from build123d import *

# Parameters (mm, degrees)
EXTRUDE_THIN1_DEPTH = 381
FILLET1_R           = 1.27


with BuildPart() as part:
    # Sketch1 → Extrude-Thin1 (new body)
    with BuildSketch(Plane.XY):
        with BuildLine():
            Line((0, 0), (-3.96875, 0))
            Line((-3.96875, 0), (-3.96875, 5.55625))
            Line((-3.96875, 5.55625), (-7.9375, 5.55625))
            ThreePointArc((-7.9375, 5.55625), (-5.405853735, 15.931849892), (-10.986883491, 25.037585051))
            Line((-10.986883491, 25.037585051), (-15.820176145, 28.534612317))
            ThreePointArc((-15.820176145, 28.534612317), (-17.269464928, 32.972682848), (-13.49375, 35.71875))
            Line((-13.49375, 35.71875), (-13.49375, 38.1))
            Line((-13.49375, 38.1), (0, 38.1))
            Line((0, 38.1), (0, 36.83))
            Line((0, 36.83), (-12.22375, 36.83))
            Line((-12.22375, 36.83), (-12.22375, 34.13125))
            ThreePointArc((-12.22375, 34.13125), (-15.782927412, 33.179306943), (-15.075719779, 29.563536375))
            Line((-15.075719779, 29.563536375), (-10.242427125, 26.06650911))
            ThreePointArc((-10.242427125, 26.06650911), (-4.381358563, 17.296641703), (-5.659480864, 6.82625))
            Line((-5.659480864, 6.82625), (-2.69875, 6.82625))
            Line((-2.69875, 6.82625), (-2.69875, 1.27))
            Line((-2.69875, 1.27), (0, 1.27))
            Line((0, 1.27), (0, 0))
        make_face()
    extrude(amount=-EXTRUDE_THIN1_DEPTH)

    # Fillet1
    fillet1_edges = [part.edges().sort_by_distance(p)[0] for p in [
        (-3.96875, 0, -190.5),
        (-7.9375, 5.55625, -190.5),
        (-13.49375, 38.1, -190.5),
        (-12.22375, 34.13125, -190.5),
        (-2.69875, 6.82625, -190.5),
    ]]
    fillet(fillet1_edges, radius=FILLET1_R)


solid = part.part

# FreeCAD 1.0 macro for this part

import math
import FreeCAD as App
import Part
import Sketcher
from FreeCAD import Vector
Q = App.Units.Quantity


def edges_at(feature, points):
    """Names of the edges that pass closest to the given points."""
    edges = feature.Shape.Edges
    near = lambda p: min(range(len(edges)), key=lambda i: edges[i].distToShape(Part.Vertex(*p))[0])
    return sorted({f"Edge{near(p) + 1}" for p in points})

doc = App.newDocument("Part")
body = doc.addObject("PartDesign::Body", "Body")

# Sketch on XY plane
sketch1 = doc.addObject("Sketcher::SketchObject", "Sketch")
body.addObject(sketch1)
sketch1.AttachmentSupport = (doc.XY_Plane, [""])
sketch1.MapMode = "FlatFace"
sketch1.addGeometry([
    Part.LineSegment(Vector(-3.96875, 0, 0), Vector(0, 0, 0)),  # 0
    Part.LineSegment(Vector(0, 0, 0), Vector(0, 1.27, 0)),  # 1
    Part.LineSegment(Vector(0, 1.27, 0), Vector(-2.69875, 1.27, 0)),  # 2
    Part.LineSegment(Vector(-2.69875, 1.27, 0), Vector(-2.69875, 6.82625, 0)),  # 3
    Part.LineSegment(Vector(-2.69875, 6.82625, 0), Vector(-5.659481, 6.82625, 0)),  # 4
    Part.ArcOfCircle(Part.Circle(Vector(-19.129375, 13.783728, 0), Vector(0, 0, 1), 15.160625), math.radians(-27.317286), math.radians(54.113172)),  # 5
    Part.LineSegment(Vector(-10.242427, 26.066509, 0), Vector(-15.07572, 29.563536, 0)),  # 6
    Part.ArcOfCircle(Part.Circle(Vector(-13.49375, 31.75, 0), Vector(0, 0, 1), 2.69875), math.radians(61.927513), math.radians(234.113172)),  # 7
    Part.LineSegment(Vector(-12.22375, 34.13125, 0), Vector(-12.22375, 36.83, 0)),  # 8
    Part.LineSegment(Vector(-12.22375, 36.83, 0), Vector(0, 36.83, 0)),  # 9
    Part.LineSegment(Vector(0, 36.83, 0), Vector(0, 38.1, 0)),  # 10
    Part.LineSegment(Vector(0, 38.1, 0), Vector(-13.49375, 38.1, 0)),  # 11
    Part.LineSegment(Vector(-13.49375, 38.1, 0), Vector(-13.49375, 35.71875, 0)),  # 12
    Part.ArcOfCircle(Part.Circle(Vector(-13.49375, 31.75, 0), Vector(0, 0, 1), 3.96875), math.radians(90), math.radians(234.113172)),  # 13
    Part.LineSegment(Vector(-15.820176, 28.534612, 0), Vector(-10.986883, 25.037585, 0)),  # 14
    Part.ArcOfCircle(Part.Circle(Vector(-19.129375, 13.783728, 0), Vector(0, 0, 1), 13.890625), math.radians(-36.320706), math.radians(54.113172)),  # 15
    Part.LineSegment(Vector(-7.9375, 5.55625, 0), Vector(-3.96875, 5.55625, 0)),  # 16
    Part.LineSegment(Vector(-3.96875, 5.55625, 0), Vector(-3.96875, 0, 0)),  # 17
], False)
sketch1.addConstraint([
    Sketcher.Constraint("Coincident", 0, 2, 1, 1),
    Sketcher.Constraint("Coincident", 1, 2, 2, 1),
    Sketcher.Constraint("Coincident", 2, 2, 3, 1),
    Sketcher.Constraint("Coincident", 3, 2, 4, 1),
    Sketcher.Constraint("Coincident", 4, 2, 5, 1),
    Sketcher.Constraint("Tangent", 5, 2, 6, 1),
    Sketcher.Constraint("Tangent", 6, 2, 7, 2),
    Sketcher.Constraint("Coincident", 7, 1, 8, 1),
    Sketcher.Constraint("Coincident", 8, 2, 9, 1),
    Sketcher.Constraint("Coincident", 9, 2, 10, 1),
    Sketcher.Constraint("Coincident", 10, 2, 11, 1),
    Sketcher.Constraint("Coincident", 11, 2, 12, 1),
    Sketcher.Constraint("Coincident", 12, 2, 13, 1),
    Sketcher.Constraint("Tangent", 13, 2, 14, 1),
    Sketcher.Constraint("Tangent", 14, 2, 15, 2),
    Sketcher.Constraint("Coincident", 15, 1, 16, 1),
    Sketcher.Constraint("Coincident", 16, 2, 17, 1),
    Sketcher.Constraint("Coincident", 17, 2, 0, 1),
    Sketcher.Constraint("Horizontal", 0),
    Sketcher.Constraint("Vertical", 1),
    Sketcher.Constraint("Horizontal", 2),
    Sketcher.Constraint("Vertical", 3),
    Sketcher.Constraint("Horizontal", 4),
    Sketcher.Constraint("Vertical", 8),
    Sketcher.Constraint("Horizontal", 9),
    Sketcher.Constraint("Vertical", 10),
    Sketcher.Constraint("Horizontal", 11),
    Sketcher.Constraint("Vertical", 12),
    Sketcher.Constraint("Horizontal", 16),
    Sketcher.Constraint("Vertical", 17),
    Sketcher.Constraint("Coincident", 0, 2, -1, 1),
    Sketcher.Constraint("Coincident", 13, 3, 7, 3),
    Sketcher.Constraint("Coincident", 15, 3, 5, 3),
    Sketcher.Constraint("PointOnObject", 9, 2, -2),
    Sketcher.Constraint("Parallel", 6, 14),
    Sketcher.Constraint("Vertical", 13, 3, 11, 2),
    Sketcher.Constraint("Equal", 0, 16),
    Sketcher.Constraint("Equal", 2, 8),
    Sketcher.Constraint("Equal", 1, 10),
    Sketcher.Constraint("Equal", 3, 17),
    Sketcher.Constraint("Radius", 13, Q("0.15625 in")),
    Sketcher.Constraint("Radius", 15, Q("0.546875 in")),
    Sketcher.Constraint("DistanceY", 1, 1, 1, 2, Q("0.05 in")),
    Sketcher.Constraint("DistanceY", -1, 1, 10, 2, Q("1.5 in")),
    Sketcher.Constraint("DistanceY", 1, 2, 7, 3, Q("1.2 in")),
    Sketcher.Constraint("DistanceX", 0, 1, 0, 2, Q("0.15625 in")),
    Sketcher.Constraint("DistanceX", 11, 2, 11, 1, Q("0.53125 in")),
    Sketcher.Constraint("DistanceY", 3, 1, 3, 2, Q("0.21875 in")),
    Sketcher.Constraint("DistanceX", 13, 3, 7, 1, Q("0.05 in")),
    Sketcher.Constraint("DistanceX", 16, 2, 3, 2, Q("0.05 in")),
    Sketcher.Constraint("DistanceX", 4, 2, 4, 1, 2.960731),
])
pad1 = doc.addObject("PartDesign::Pad", "Pad")
body.addObject(pad1)
pad1.Profile = sketch1
pad1.Length = Q("15 in")
pad1.Reversed = True
doc.recompute()

fillet = doc.addObject("PartDesign::Fillet", "Fillet")
body.addObject(fillet)
fillet.Base = (pad1, edges_at(pad1, [
    (-3.969, 0, -190.5),
    (-7.938, 5.556, -190.5),
    (-13.494, 38.1, -190.5),
    (-12.224, 34.131, -190.5),
    (-2.699, 6.826, -190.5),
]))
fillet.Radius = Q("0.05 in")

doc.recompute()
